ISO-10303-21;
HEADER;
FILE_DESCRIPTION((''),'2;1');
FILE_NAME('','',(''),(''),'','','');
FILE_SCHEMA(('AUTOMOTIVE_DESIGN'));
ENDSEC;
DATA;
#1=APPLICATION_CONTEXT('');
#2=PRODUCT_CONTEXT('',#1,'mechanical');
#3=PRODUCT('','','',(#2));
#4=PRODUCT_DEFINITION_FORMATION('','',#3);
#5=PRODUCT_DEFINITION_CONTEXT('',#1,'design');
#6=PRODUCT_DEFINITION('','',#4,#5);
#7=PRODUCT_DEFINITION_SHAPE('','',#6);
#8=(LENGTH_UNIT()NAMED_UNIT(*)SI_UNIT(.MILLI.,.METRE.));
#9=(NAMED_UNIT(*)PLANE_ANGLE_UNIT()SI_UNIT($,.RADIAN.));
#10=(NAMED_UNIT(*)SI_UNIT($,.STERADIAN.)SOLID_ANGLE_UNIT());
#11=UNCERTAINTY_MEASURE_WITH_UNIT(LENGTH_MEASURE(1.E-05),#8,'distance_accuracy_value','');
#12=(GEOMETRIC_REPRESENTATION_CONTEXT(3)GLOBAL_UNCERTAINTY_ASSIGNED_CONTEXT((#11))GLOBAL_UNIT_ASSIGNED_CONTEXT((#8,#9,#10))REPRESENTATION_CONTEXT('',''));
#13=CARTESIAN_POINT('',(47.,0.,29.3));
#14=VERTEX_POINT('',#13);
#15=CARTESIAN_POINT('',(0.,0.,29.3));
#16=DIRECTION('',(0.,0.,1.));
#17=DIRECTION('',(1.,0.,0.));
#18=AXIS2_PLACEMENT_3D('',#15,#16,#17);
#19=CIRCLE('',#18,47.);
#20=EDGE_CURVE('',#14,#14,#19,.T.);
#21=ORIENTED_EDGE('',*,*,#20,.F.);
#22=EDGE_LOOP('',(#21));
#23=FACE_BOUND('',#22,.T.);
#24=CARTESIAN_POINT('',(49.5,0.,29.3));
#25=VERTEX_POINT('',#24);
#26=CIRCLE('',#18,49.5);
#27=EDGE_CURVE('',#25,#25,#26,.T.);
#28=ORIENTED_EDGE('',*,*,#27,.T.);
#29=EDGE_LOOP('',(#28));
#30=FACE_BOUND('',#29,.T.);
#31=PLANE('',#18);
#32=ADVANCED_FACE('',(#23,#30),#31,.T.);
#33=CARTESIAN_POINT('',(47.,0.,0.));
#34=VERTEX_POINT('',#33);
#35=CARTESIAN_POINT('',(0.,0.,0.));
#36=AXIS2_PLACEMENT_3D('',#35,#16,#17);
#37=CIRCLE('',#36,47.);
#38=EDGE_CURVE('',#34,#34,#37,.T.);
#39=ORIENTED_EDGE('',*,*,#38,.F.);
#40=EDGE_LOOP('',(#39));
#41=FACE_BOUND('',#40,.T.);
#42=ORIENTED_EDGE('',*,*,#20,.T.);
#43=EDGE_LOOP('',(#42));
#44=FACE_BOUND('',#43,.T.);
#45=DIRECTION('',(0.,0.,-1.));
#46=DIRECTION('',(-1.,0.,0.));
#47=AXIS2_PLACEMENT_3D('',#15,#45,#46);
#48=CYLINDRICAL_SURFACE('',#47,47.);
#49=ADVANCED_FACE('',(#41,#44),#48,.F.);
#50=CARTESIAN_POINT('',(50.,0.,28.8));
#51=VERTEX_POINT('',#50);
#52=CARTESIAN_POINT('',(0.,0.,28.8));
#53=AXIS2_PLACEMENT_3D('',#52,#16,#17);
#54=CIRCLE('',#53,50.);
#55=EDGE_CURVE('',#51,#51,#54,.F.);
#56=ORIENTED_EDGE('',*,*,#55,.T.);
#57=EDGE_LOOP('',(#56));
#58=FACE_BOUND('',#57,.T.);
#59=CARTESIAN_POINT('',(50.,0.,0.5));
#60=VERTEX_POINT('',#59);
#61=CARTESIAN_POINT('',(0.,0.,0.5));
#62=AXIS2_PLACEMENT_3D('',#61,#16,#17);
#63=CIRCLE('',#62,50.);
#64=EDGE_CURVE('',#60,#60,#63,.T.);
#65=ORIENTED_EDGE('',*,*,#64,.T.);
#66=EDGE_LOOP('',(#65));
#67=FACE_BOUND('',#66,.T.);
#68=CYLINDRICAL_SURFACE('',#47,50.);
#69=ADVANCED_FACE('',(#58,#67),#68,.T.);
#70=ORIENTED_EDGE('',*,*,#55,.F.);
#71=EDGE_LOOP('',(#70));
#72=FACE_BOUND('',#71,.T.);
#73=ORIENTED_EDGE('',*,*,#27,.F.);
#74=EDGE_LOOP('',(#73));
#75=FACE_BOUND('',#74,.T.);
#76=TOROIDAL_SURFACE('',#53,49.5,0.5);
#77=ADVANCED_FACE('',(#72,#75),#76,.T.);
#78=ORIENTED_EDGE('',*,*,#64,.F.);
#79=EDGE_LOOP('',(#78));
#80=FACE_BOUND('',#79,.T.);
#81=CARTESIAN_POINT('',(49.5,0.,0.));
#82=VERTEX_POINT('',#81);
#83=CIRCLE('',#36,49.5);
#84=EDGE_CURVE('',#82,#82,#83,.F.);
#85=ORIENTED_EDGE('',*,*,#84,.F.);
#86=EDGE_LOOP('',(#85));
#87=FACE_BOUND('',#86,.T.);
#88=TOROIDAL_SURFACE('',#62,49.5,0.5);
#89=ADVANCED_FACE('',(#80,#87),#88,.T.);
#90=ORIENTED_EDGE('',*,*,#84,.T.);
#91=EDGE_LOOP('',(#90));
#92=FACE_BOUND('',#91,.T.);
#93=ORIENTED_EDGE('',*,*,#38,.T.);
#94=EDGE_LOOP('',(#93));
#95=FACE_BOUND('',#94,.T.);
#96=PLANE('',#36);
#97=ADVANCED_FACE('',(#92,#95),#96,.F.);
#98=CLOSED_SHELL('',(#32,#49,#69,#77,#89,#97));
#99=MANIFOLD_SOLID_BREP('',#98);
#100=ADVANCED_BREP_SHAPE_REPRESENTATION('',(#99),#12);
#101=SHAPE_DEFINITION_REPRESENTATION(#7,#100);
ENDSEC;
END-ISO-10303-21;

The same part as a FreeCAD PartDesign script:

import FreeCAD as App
import Part
import Sketcher

V = App.Vector
Q = App.Units.Quantity


def edges_at(feature, points):
    """Names of the edges that pass closest to the given points."""
    edges = feature.Shape.Edges
    near = lambda p: min(range(len(edges)), key=lambda i: edges[i].distToShape(Part.Vertex(*p))[0])
    return sorted({f"Edge{near(p) + 1}" for p in points})

doc = App.newDocument("Part")
body = doc.addObject("PartDesign::Body", "Body")

# Sketch on XY plane
sketch1 = body.newObject("Sketcher::SketchObject", "Sketch")
sketch1.AttachmentSupport = (doc.getObject("XY_Plane"), [""])
sketch1.MapMode = "FlatFace"
sketch1.addGeometry([
    Part.Circle(V(0, 0, 0), V(0, 0, 1), 50),
    Part.Circle(V(0, 0, 0), V(0, 0, 1), 47),
], False)
sketch1.addConstraint([
    Sketcher.Constraint("Coincident", 0, 3, -1, 1),
    Sketcher.Constraint("Coincident", 1, 3, -1, 1),
    Sketcher.Constraint("Diameter", 0, Q("100 mm")),
    Sketcher.Constraint("Diameter", 1, Q("94 mm")),
])
pad1 = body.newObject("PartDesign::Pad", "Pad")
pad1.Profile = sketch1
pad1.Length = 29.3
doc.recompute()

fillet = body.newObject("PartDesign::Fillet", "Fillet")
fillet.Base = (pad1, edges_at(pad1, [(-50, 0, 0), (-50, 0, 29.3)]))
fillet.Radius = 0.5

doc.recompute()
